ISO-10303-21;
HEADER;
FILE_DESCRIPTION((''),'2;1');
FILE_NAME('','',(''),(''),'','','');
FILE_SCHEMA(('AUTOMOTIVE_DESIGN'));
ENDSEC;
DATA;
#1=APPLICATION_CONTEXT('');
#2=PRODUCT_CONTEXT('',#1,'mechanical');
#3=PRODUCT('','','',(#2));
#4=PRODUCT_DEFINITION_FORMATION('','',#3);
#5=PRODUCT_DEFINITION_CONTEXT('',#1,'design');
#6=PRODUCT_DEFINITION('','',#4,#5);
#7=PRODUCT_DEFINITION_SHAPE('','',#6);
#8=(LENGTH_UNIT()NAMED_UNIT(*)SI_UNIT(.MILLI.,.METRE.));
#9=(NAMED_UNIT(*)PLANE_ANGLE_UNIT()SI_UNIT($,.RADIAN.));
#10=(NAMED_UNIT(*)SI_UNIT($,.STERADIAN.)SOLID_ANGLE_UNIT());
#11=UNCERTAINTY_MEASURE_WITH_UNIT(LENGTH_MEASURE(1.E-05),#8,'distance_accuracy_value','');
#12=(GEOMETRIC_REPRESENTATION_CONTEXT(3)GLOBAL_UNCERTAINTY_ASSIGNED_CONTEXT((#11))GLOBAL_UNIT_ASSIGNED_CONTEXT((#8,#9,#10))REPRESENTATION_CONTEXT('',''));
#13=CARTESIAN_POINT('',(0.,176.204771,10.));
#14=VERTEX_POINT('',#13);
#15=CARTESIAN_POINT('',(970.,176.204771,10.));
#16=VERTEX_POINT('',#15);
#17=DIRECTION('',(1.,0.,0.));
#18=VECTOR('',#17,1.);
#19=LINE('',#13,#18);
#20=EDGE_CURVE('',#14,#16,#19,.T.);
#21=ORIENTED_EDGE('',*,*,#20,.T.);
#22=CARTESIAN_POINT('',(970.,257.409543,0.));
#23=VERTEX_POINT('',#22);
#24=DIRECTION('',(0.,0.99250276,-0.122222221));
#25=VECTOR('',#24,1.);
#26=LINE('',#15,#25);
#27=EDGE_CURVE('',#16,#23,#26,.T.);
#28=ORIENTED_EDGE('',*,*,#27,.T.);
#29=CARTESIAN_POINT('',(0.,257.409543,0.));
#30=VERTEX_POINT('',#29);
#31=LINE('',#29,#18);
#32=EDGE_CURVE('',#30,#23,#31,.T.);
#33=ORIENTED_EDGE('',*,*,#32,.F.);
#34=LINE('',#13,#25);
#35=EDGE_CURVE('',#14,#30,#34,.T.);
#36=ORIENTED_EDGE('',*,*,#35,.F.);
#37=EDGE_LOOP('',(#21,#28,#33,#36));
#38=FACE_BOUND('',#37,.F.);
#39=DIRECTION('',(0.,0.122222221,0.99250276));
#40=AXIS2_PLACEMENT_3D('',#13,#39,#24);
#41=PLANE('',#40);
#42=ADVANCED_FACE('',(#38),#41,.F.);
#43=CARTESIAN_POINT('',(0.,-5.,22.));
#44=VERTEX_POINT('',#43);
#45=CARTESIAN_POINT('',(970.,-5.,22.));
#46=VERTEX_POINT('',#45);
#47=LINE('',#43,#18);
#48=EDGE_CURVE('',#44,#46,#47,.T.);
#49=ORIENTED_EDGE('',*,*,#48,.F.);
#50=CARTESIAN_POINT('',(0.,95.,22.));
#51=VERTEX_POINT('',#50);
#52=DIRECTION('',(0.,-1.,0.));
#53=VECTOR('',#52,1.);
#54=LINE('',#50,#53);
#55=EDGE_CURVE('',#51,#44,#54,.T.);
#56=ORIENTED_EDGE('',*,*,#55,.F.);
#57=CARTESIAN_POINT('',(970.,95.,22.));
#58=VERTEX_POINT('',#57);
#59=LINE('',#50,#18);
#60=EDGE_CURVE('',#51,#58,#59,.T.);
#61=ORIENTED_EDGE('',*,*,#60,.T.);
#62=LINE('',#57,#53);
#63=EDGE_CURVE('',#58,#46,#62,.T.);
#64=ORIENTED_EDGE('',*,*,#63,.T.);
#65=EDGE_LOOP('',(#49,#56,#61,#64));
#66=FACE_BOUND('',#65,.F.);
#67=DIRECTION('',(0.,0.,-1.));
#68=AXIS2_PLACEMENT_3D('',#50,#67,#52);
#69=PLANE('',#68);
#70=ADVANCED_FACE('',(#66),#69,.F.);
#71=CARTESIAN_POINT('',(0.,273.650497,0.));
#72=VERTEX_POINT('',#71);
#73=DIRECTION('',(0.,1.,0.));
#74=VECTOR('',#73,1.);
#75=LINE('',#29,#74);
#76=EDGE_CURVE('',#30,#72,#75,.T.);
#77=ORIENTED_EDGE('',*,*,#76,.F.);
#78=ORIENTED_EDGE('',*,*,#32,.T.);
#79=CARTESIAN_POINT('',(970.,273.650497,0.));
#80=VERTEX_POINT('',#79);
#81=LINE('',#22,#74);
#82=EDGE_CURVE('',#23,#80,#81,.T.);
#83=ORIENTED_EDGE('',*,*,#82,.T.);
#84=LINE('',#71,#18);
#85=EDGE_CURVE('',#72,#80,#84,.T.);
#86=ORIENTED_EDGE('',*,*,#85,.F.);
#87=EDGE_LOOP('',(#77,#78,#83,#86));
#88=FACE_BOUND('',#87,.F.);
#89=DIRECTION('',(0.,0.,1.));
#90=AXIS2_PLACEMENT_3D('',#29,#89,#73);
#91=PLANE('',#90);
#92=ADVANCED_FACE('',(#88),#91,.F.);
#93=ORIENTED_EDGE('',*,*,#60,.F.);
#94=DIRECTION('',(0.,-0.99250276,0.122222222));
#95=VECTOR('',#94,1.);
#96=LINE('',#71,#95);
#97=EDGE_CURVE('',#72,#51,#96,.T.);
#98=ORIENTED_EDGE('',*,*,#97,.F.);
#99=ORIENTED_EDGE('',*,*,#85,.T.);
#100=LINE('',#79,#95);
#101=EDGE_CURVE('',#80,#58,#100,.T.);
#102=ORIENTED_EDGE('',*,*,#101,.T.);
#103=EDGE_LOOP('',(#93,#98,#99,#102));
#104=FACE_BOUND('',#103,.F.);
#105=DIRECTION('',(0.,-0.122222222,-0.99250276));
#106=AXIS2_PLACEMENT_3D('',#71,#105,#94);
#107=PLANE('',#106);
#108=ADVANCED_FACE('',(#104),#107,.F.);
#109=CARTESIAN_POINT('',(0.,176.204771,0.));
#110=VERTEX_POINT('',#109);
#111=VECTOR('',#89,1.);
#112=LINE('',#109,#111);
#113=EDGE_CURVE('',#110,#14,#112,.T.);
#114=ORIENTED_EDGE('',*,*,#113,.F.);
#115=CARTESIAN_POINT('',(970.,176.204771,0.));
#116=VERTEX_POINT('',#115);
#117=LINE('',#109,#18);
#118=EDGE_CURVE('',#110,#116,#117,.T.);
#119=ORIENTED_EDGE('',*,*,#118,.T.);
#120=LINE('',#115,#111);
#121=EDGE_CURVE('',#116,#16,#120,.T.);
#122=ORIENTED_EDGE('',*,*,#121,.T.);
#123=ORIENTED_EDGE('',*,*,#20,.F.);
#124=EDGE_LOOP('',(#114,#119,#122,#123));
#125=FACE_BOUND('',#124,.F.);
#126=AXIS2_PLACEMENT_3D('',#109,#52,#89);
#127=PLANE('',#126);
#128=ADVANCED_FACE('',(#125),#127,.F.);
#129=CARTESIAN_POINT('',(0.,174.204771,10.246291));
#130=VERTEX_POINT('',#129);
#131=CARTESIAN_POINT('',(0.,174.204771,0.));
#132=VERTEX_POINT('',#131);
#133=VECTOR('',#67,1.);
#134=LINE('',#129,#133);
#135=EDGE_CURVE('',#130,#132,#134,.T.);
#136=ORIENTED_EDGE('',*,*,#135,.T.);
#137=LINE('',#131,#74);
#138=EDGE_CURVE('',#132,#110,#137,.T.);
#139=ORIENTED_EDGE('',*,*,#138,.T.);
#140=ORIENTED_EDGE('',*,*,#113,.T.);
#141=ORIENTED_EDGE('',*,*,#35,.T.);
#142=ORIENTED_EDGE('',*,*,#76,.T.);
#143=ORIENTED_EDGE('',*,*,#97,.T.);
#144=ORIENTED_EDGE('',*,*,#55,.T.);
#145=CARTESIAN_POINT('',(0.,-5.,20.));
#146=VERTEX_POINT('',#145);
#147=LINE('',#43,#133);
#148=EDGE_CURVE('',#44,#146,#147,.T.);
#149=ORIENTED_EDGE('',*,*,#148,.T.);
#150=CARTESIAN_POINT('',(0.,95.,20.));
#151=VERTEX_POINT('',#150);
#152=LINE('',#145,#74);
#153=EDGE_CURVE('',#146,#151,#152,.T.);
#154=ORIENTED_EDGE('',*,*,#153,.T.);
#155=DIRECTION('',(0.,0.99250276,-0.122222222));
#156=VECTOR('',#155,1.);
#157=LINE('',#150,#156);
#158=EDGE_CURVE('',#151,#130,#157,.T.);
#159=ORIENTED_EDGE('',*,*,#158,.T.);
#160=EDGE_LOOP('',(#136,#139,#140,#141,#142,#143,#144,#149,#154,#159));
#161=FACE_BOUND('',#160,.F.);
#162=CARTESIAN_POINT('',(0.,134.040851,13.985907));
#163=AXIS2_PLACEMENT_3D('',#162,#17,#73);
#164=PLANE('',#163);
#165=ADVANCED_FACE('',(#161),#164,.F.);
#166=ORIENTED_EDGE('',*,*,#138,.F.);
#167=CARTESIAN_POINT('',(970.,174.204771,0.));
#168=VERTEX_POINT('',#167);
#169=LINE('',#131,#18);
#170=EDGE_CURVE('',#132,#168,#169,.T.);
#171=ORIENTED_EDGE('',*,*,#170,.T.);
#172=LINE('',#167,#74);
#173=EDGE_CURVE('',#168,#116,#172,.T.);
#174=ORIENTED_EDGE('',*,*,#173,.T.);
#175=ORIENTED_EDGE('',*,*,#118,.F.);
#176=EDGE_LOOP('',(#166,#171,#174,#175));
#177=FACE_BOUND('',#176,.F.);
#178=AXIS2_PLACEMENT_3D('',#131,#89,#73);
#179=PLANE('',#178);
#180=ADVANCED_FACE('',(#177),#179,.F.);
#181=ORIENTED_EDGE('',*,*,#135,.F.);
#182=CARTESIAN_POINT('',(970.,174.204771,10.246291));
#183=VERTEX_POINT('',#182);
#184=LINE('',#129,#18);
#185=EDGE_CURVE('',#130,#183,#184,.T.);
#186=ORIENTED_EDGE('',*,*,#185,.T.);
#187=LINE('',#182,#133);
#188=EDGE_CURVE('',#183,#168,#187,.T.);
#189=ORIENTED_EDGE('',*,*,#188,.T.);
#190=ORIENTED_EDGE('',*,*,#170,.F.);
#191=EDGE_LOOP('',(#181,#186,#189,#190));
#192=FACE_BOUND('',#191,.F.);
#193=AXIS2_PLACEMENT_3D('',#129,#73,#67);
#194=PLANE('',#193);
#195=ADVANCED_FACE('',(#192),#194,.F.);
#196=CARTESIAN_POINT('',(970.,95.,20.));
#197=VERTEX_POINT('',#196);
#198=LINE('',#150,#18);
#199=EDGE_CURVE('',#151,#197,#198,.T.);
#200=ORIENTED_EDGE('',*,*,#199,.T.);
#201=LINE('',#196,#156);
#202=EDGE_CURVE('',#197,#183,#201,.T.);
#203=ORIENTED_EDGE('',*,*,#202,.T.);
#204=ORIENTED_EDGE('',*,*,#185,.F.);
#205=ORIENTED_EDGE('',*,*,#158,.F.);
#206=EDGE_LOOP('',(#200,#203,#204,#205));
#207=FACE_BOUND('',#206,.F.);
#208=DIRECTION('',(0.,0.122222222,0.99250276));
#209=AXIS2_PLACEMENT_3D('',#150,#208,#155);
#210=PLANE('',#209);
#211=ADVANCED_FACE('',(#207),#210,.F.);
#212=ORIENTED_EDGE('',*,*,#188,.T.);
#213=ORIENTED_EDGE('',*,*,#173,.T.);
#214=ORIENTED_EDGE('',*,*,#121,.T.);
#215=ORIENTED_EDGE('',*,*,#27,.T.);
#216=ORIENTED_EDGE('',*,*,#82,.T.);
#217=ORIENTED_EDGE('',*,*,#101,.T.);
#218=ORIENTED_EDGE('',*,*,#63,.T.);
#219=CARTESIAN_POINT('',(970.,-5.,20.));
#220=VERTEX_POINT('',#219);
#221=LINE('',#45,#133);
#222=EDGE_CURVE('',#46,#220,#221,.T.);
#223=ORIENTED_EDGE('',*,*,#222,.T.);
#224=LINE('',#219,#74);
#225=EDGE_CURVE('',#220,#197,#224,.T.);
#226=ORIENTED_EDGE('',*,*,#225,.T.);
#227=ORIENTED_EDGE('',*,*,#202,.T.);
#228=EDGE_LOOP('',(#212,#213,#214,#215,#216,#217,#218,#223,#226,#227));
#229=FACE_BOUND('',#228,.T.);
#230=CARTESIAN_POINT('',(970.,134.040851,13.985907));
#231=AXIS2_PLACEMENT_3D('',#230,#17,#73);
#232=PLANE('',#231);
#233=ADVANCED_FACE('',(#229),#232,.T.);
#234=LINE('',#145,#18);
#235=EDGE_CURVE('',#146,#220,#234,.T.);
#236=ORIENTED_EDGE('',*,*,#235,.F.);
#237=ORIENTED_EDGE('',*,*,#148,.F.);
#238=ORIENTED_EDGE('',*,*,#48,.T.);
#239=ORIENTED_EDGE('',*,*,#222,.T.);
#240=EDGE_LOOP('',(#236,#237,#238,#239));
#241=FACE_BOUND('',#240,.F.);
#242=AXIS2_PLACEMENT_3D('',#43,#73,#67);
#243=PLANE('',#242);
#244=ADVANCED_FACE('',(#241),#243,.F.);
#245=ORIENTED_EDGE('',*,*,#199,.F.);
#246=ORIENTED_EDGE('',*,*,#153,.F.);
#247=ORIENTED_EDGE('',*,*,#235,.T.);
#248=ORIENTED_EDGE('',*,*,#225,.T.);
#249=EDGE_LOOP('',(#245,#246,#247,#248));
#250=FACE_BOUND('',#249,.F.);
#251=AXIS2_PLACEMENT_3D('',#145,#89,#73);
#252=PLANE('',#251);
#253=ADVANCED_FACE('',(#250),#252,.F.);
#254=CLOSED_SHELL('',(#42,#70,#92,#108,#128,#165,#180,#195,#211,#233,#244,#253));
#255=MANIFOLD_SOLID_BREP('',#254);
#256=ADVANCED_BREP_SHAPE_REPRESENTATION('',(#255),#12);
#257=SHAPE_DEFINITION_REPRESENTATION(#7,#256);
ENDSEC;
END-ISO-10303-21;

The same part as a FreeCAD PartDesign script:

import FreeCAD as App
import Part
import Sketcher

V = App.Vector
Q = App.Units.Quantity


def add_polygon(sketch, points):
    """Adds a closed chain of lines whose ends are joined by coincident constraints."""
    first, n = sketch.GeometryCount, len(points)
    for a, b in zip(points, points[1:] + points[:1]):
        sketch.addGeometry(Part.LineSegment(App.Vector(*a, 0), App.Vector(*b, 0)), False)
    for i in range(n):
        sketch.addConstraint(Sketcher.Constraint("Coincident", first + i, 2, first + (i + 1) % n, 1))

doc = App.newDocument("Part")
body = doc.addObject("PartDesign::Body", "Body")

# Sketch on YZ plane
sketch1 = body.newObject("Sketcher::SketchObject", "Sketch")
sketch1.AttachmentSupport = (doc.getObject("YZ_Plane"), [""])
sketch1.MapMode = "FlatFace"
add_polygon(sketch1, [(0, 20), (0, 0), (2.3, 0), (2.3, 17.7), (27.7, 17.7), (27.7, 0), (30, 0), (30, 20)])  # lines 0-7
sketch1.addConstraint(Sketcher.Constraint("Vertical", 0))
sketch1.addConstraint(Sketcher.Constraint("Horizontal", 1))
sketch1.addConstraint(Sketcher.Constraint("Vertical", 2))
sketch1.addConstraint(Sketcher.Constraint("Horizontal", 3))
sketch1.addConstraint(Sketcher.Constraint("Vertical", 4))
sketch1.addConstraint(Sketcher.Constraint("Horizontal", 5))
sketch1.addConstraint(Sketcher.Constraint("Vertical", 6))
sketch1.addConstraint(Sketcher.Constraint("Horizontal", 7))
sketch1.addConstraint(Sketcher.Constraint("Coincident", 0, 2, -1, 1))
sketch1.addConstraint(Sketcher.Constraint("PointOnObject", 4, 2, -1))
sketch1.addConstraint(Sketcher.Constraint("Equal", 1, 5))
sketch1.addConstraint(Sketcher.Constraint("DistanceX", 7, 2, 7, 1, Q("30 mm")))
sketch1.addConstraint(Sketcher.Constraint("DistanceY", 0, 2, 0, 1, Q("20 mm")))
sketch1.addConstraint(Sketcher.Constraint("DistanceX", 1, 1, 1, 2, Q("2.3 mm")))
sketch1.addConstraint(Sketcher.Constraint("DistanceY", 2, 1, 2, 2, Q("17.7 mm")))
pad1 = body.newObject("PartDesign::Pad", "Pad")
pad1.Profile = sketch1
pad1.Length = 970

# Sketch on XY plane
sketch2 = body.newObject("Sketcher::SketchObject", "Sketch001")
sketch2.AttachmentSupport = (doc.getObject("XY_Plane"), [""])
sketch2.MapMode = "FlatFace"
sketch2.AttachmentOffset = App.Placement(V(0, 0, 20), App.Rotation())
add_polygon(sketch2, [(0, 30), (0, 0), (35, 0), (35, 30)])  # lines 0-3
add_polygon(sketch2, [(935, 30), (935, 0), (970, 0), (970, 30)])  # lines 4-7
sketch2.addConstraint(Sketcher.Constraint("Vertical", 0))
sketch2.addConstraint(Sketcher.Constraint("Horizontal", 1))
sketch2.addConstraint(Sketcher.Constraint("Vertical", 2))
sketch2.addConstraint(Sketcher.Constraint("Horizontal", 3))
sketch2.addConstraint(Sketcher.Constraint("Vertical", 4))
sketch2.addConstraint(Sketcher.Constraint("Horizontal", 5))
sketch2.addConstraint(Sketcher.Constraint("Vertical", 6))
sketch2.addConstraint(Sketcher.Constraint("Horizontal", 7))
sketch2.addConstraint(Sketcher.Constraint("Coincident", 0, 2, -1, 1))
sketch2.addConstraint(Sketcher.Constraint("PointOnObject", 4, 2, -1))
sketch2.addConstraint(Sketcher.Constraint("Horizontal", 3, 2, 6, 2))
sketch2.addConstraint(Sketcher.Constraint("Equal", 3, 5))
sketch2.addConstraint(Sketcher.Constraint("DistanceX", 1, 1, 1, 2, Q("35 mm")))
sketch2.addConstraint(Sketcher.Constraint("DistanceY", 0, 2, 0, 1, Q("30 mm")))
sketch2.addConstraint(Sketcher.Constraint("DistanceX", -1, 1, 4, 2, Q("935 mm")))
pocket1 = body.newObject("PartDesign::Pocket", "Pocket")
pocket1.Profile = sketch2
pocket1.Length = 2.3

# Sketch on XZ plane
sketch3 = body.newObject("Sketcher::SketchObject", "Sketch002")
sketch3.AttachmentSupport = (doc.getObject("XZ_Plane"), [""])
sketch3.MapMode = "FlatFace"
add_polygon(sketch3, [(32.6, 1), (32.6, 0), (35, 0), (35, 1)])  # lines 0-3
add_polygon(sketch3, [(5, 1), (5, 0), (7.4, 0), (7.4, 1)])  # lines 4-7
add_polygon(sketch3, [(935, 1), (935, 0), (937.4, 0), (937.4, 1)])  # lines 8-11
add_polygon(sketch3, [(962.6, 1), (962.6, 0), (965, 0), (965, 1)])  # lines 12-15
sketch3.addConstraint(Sketcher.Constraint("Vertical", 0))
sketch3.addConstraint(Sketcher.Constraint("Horizontal", 1))
sketch3.addConstraint(Sketcher.Constraint("Vertical", 2))
sketch3.addConstraint(Sketcher.Constraint("Horizontal", 3))
sketch3.addConstraint(Sketcher.Constraint("Vertical", 4))
sketch3.addConstraint(Sketcher.Constraint("Horizontal", 5))
sketch3.addConstraint(Sketcher.Constraint("Vertical", 6))
sketch3.addConstraint(Sketcher.Constraint("Horizontal", 7))
sketch3.addConstraint(Sketcher.Constraint("Vertical", 8))
sketch3.addConstraint(Sketcher.Constraint("Horizontal", 9))
sketch3.addConstraint(Sketcher.Constraint("Vertical", 10))
sketch3.addConstraint(Sketcher.Constraint("Horizontal", 11))
sketch3.addConstraint(Sketcher.Constraint("Vertical", 12))
sketch3.addConstraint(Sketcher.Constraint("Horizontal", 13))
sketch3.addConstraint(Sketcher.Constraint("Vertical", 14))
sketch3.addConstraint(Sketcher.Constraint("Horizontal", 15))
sketch3.addConstraint(Sketcher.Constraint("PointOnObject", 0, 2, -1))
sketch3.addConstraint(Sketcher.Constraint("PointOnObject", 4, 2, -1))
sketch3.addConstraint(Sketcher.Constraint("PointOnObject", 8, 2, -1))
sketch3.addConstraint(Sketcher.Constraint("PointOnObject", 12, 2, -1))
sketch3.addConstraint(Sketcher.Constraint("Horizontal", 3, 2, 6, 2))
sketch3.addConstraint(Sketcher.Constraint("Horizontal", 7, 2, 10, 2))
sketch3.addConstraint(Sketcher.Constraint("Horizontal", 11, 2, 14, 2))
sketch3.addConstraint(Sketcher.Constraint("Equal", 3, 5))
sketch3.addConstraint(Sketcher.Constraint("Equal", 7, 9))
sketch3.addConstraint(Sketcher.Constraint("Equal", 11, 13))
sketch3.addConstraint(Sketcher.Constraint("DistanceY", 0, 2, 0, 1, Q("1 mm")))
sketch3.addConstraint(Sketcher.Constraint("DistanceX", 1, 1, 1, 2, Q("2.4 mm")))
sketch3.addConstraint(Sketcher.Constraint("DistanceX", -1, 1, 1, 2, Q("35 mm")))
sketch3.addConstraint(Sketcher.Constraint("DistanceX", -1, 1, 4, 2, Q("5 mm")))
sketch3.addConstraint(Sketcher.Constraint("DistanceX", -1, 1, 8, 2, Q("935 mm")))
sketch3.addConstraint(Sketcher.Constraint("DistanceX", -1, 1, 13, 2, Q("965 mm")))
pocket2 = body.newObject("PartDesign::Pocket", "Pocket001")
pocket2.Profile = sketch3
pocket2.Type = "ThroughAll"
body2 = doc.addObject("PartDesign::Body", "Body001")

# Sketch on YZ plane
sketch4 = body2.newObject("Sketcher::SketchObject", "Sketch003")
sketch4.AttachmentSupport = (doc.getObject("YZ_Plane001"), [""])
sketch4.MapMode = "FlatFace"
add_polygon(sketch4, [(-5, 20), (95, 20), (174.204771, 10.246291), (174.204771, 0), (176.204771, 0), (176.204771, 10), (257.409543, 0), (273.650497, 0), (95, 22), (-5, 22)])  # lines 0-9
sketch4.addConstraint(Sketcher.Constraint("Horizontal", 0))
sketch4.addConstraint(Sketcher.Constraint("Vertical", 2))
sketch4.addConstraint(Sketcher.Constraint("Horizontal", 3))
sketch4.addConstraint(Sketcher.Constraint("Vertical", 4))
sketch4.addConstraint(Sketcher.Constraint("Horizontal", 6))
sketch4.addConstraint(Sketcher.Constraint("Horizontal", 8))
sketch4.addConstraint(Sketcher.Constraint("Vertical", 9))
sketch4.addConstraint(Sketcher.Constraint("PointOnObject", 2, 2, -1))
sketch4.addConstraint(Sketcher.Constraint("PointOnObject", 5, 2, -1))
sketch4.addConstraint(Sketcher.Constraint("Parallel", 1, 5))
sketch4.addConstraint(Sketcher.Constraint("Parallel", 5, 7))
sketch4.addConstraint(Sketcher.Constraint("Vertical", 0, 2, 7, 2))
sketch4.addConstraint(Sketcher.Constraint("Equal", 3, 9))
sketch4.addConstraint(Sketcher.Constraint("DistanceX", 0, 1, 0, 2, Q("100 mm")))
sketch4.addConstraint(Sketcher.Constraint("DistanceX", 3, 1, 3, 2, Q("2 mm")))
sketch4.addConstraint(Sketcher.Constraint("DistanceY", 4, 1, 4, 2, Q("10 mm")))
sketch4.addConstraint(Sketcher.Constraint("Distance", 7, Q("180 mm")))
sketch4.addConstraint(Sketcher.Constraint("DistanceX", -1, 1, 0, 2, Q("95 mm")))
sketch4.addConstraint(Sketcher.Constraint("DistanceY", -1, 1, 0, 2, Q("20 mm")))
sketch4.addConstraint(Sketcher.Constraint("DistanceY", 2, 2, 2, 1, Q("10.246291 mm")))
pad2 = body2.newObject("PartDesign::Pad", "Pad001")
pad2.Profile = sketch4
pad2.Length = 970
body.Visibility = False

doc.recompute()
